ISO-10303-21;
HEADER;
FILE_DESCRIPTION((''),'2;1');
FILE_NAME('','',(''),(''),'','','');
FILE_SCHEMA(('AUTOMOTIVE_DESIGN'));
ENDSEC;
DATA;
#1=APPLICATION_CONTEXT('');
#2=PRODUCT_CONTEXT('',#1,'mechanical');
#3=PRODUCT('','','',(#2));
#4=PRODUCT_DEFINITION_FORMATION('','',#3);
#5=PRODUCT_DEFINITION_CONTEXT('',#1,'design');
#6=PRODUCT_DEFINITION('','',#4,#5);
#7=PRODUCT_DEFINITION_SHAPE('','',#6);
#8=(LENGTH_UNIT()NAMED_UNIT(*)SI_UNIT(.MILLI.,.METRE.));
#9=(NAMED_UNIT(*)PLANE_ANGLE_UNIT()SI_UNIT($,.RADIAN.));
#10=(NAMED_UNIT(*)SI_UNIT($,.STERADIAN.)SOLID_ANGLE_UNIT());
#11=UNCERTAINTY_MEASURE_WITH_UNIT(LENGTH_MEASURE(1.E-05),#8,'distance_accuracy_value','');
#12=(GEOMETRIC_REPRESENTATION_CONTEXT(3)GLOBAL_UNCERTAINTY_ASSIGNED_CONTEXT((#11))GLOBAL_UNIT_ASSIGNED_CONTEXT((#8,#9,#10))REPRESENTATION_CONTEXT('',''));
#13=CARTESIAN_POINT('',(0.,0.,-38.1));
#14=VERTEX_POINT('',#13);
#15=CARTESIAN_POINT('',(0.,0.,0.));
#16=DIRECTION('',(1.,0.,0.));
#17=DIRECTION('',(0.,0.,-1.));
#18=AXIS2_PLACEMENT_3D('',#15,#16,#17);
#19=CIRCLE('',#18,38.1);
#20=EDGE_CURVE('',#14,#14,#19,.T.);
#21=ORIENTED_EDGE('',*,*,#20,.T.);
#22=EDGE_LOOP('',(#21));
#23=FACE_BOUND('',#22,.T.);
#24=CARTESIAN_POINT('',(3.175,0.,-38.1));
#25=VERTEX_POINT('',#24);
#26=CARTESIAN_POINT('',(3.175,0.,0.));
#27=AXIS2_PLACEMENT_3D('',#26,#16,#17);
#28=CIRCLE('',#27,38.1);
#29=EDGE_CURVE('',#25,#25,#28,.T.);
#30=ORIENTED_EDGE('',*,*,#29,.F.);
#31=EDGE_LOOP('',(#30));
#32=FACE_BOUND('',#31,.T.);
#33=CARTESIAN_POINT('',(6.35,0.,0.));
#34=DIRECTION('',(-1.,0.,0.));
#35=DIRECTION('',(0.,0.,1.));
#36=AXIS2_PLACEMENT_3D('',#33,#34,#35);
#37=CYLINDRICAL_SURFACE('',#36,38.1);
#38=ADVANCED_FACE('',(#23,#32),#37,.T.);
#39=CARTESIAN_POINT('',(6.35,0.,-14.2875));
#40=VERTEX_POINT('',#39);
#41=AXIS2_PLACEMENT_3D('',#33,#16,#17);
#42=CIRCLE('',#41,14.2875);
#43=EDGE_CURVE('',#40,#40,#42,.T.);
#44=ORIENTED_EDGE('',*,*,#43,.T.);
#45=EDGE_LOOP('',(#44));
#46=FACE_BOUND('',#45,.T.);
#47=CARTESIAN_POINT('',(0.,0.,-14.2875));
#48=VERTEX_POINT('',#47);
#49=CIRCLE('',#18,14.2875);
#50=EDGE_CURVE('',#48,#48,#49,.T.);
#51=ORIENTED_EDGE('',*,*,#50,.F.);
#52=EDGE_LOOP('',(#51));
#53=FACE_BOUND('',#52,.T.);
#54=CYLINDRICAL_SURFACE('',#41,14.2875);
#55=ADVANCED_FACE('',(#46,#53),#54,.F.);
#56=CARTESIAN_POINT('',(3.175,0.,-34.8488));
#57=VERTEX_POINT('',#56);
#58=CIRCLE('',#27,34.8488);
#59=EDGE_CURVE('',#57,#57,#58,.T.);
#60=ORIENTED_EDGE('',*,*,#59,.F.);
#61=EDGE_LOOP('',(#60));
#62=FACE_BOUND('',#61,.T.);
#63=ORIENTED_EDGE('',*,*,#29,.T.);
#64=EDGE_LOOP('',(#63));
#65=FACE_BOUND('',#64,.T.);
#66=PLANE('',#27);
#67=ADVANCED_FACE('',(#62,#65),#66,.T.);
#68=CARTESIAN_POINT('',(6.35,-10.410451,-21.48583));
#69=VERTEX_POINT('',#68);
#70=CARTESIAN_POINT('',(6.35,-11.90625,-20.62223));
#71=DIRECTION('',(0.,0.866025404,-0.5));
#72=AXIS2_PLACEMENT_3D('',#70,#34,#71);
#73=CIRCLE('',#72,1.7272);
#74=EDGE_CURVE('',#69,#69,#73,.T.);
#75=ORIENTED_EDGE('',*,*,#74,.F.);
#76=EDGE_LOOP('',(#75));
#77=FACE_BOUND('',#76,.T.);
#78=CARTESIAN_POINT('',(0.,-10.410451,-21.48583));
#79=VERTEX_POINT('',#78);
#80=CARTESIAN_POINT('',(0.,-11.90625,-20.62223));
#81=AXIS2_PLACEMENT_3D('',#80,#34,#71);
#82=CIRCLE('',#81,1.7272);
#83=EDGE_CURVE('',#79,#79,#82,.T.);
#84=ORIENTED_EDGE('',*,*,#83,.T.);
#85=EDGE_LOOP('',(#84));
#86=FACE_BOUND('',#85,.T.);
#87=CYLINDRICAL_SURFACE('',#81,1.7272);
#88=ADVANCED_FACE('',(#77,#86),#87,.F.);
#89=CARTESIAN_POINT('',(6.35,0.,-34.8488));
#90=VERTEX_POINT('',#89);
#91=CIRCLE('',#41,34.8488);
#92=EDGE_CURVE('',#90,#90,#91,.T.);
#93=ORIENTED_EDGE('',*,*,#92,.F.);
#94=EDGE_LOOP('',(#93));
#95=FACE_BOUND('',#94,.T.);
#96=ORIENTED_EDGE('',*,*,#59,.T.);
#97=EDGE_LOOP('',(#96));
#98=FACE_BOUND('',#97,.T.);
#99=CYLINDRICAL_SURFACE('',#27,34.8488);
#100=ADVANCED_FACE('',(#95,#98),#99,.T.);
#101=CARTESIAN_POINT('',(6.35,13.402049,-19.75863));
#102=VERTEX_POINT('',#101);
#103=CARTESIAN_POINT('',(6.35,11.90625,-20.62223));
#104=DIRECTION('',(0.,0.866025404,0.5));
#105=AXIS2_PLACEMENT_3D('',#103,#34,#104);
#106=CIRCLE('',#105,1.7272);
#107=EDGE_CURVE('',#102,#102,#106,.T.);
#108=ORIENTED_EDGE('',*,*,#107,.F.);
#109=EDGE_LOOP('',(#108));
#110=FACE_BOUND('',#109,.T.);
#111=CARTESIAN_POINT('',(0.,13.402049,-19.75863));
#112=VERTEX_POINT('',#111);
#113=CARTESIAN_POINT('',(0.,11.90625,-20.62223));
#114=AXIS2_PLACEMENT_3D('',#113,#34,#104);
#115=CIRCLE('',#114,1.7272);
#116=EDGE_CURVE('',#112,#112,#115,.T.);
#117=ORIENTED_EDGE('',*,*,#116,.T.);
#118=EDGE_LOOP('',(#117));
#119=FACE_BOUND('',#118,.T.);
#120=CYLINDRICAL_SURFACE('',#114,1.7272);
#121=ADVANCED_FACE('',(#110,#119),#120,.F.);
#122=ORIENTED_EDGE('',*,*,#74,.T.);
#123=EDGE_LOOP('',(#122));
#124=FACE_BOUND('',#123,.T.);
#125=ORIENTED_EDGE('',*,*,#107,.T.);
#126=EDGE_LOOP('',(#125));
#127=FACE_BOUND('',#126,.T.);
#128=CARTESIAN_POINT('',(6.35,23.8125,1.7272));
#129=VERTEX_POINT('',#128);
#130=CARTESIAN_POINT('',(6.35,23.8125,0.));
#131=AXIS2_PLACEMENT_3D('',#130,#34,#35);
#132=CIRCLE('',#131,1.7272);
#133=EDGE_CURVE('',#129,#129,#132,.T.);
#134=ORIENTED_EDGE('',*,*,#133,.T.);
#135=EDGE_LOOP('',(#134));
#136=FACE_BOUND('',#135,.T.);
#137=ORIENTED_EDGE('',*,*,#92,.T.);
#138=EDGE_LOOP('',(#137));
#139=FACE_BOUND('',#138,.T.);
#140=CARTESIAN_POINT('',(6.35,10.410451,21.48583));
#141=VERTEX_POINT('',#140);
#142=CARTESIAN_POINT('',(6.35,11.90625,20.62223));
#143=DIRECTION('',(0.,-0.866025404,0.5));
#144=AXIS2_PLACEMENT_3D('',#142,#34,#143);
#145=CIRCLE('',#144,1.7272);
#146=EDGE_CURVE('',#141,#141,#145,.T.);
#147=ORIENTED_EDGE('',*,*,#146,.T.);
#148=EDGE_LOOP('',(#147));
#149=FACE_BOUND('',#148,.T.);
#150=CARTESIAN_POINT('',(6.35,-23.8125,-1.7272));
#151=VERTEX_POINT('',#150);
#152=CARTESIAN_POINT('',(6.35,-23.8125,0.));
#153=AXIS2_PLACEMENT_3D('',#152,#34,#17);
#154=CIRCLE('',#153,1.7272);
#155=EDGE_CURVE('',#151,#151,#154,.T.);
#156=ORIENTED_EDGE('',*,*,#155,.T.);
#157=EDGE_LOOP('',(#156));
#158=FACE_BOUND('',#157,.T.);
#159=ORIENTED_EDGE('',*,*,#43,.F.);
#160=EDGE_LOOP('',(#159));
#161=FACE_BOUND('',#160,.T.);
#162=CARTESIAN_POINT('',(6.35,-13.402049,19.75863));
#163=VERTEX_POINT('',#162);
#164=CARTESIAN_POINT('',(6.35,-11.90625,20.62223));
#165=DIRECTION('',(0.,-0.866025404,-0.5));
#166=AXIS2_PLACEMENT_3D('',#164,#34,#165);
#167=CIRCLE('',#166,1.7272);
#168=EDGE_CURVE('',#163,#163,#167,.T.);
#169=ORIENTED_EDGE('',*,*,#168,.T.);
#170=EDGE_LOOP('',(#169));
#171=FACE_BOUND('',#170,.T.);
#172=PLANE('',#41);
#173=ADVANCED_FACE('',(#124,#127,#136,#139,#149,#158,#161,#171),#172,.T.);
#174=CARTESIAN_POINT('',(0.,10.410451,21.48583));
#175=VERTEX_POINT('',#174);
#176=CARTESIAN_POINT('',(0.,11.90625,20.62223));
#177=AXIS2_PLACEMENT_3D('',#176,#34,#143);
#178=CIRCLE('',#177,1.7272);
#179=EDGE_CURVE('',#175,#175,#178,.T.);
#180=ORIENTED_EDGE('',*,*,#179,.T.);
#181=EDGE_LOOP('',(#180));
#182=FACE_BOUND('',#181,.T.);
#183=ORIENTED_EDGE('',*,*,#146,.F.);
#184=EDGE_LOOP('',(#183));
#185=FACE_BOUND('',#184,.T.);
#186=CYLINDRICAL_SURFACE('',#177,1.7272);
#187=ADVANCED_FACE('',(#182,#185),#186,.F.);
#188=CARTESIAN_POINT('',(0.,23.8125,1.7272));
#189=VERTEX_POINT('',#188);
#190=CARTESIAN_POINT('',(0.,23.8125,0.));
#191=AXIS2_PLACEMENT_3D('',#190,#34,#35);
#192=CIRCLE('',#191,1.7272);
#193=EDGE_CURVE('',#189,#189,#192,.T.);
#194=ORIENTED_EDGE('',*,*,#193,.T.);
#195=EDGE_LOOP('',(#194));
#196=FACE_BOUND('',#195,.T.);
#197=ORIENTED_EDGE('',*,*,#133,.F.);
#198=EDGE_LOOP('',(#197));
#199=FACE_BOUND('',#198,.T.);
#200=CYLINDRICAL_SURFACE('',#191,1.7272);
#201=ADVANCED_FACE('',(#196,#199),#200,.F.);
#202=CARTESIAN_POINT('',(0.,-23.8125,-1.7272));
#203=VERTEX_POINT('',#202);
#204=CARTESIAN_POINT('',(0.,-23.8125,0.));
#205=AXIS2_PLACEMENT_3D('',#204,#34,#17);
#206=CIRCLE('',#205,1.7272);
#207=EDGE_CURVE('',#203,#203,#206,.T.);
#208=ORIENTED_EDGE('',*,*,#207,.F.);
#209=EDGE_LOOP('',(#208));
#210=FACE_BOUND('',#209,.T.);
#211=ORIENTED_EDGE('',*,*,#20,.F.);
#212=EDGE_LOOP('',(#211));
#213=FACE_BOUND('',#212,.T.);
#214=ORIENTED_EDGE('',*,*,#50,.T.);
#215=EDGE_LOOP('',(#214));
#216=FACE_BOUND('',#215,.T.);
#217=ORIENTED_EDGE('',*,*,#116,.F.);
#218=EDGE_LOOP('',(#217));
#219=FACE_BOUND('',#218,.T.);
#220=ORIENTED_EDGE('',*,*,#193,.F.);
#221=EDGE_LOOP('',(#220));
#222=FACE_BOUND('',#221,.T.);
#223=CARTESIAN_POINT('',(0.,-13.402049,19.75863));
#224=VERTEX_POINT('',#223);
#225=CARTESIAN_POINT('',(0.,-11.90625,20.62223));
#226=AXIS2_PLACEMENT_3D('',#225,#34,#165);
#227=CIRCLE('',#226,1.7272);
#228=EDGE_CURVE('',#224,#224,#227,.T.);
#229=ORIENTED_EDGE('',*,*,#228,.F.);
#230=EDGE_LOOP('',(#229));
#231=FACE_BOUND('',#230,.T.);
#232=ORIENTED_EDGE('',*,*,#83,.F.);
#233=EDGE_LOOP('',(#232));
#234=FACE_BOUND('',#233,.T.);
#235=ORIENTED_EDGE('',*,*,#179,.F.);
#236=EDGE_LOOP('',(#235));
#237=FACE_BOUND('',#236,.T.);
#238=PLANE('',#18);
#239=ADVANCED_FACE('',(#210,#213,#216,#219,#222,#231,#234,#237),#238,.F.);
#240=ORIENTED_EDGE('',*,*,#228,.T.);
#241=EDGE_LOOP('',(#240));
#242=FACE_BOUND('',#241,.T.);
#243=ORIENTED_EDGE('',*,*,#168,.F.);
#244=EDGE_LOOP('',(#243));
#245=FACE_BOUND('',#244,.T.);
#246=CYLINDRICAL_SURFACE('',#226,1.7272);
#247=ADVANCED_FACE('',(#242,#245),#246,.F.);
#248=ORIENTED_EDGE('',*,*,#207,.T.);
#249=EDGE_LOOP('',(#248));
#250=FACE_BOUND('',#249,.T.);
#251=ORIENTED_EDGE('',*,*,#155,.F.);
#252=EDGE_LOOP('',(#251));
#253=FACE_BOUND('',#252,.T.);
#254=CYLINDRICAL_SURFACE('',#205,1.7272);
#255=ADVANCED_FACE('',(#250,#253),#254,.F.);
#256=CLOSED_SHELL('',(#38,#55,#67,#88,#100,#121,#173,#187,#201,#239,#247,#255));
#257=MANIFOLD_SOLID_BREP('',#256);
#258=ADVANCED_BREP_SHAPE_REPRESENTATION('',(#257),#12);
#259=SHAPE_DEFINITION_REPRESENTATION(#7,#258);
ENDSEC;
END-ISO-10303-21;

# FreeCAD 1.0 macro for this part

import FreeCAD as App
import Part
import Sketcher

V = App.Vector
Q = App.Units.Quantity

doc = App.newDocument("Part")
body = doc.addObject("PartDesign::Body", "Body")

# Sketch on YZ plane
sketch1 = body.newObject("Sketcher::SketchObject", "Sketch")
sketch1.AttachmentSupport = (doc.getObject("YZ_Plane"), [""])
sketch1.MapMode = "FlatFace"
sketch1.addGeometry(Part.Circle(V(0, 0, 0), V(0, 0, 1), 38), False)
sketch1.addConstraint([
    Sketcher.Constraint("Coincident", 0, 3, -1, 1),
    Sketcher.Constraint("Diameter", 0, Q("3 in")),
])
pad1 = body.newObject("PartDesign::Pad", "Pad")
pad1.Profile = sketch1
pad1.Length = Q("0.25 in")

# Sketch on YZ plane
sketch2 = body.newObject("Sketcher::SketchObject", "Sketch001")
sketch2.AttachmentSupport = (doc.getObject("YZ_Plane"), [""])
sketch2.MapMode = "FlatFace"
sketch2.AttachmentOffset = App.Placement(V(0, 0, 0.25 * 25.4), App.Rotation())
sketch2.addGeometry([
    Part.Circle(V(0, 0, 0), V(0, 0, 1), 38),
    Part.Circle(V(0, 0, 0), V(0, 0, 1), 35),
], False)
sketch2.addConstraint([
    Sketcher.Constraint("Coincident", 0, 3, -1, 1),
    Sketcher.Constraint("Coincident", 1, 3, -1, 1),
    Sketcher.Constraint("Diameter", 0, Q("3 in")),
    Sketcher.Constraint("Diameter", 1, Q("2.744 in")),
])
pocket1 = body.newObject("PartDesign::Pocket", "Pocket")
pocket1.Profile = sketch2
pocket1.Length = Q("0.125 in")

# Sketch on YZ plane
sketch3 = body.newObject("Sketcher::SketchObject", "Sketch002")
sketch3.AttachmentSupport = (doc.getObject("YZ_Plane"), [""])
sketch3.MapMode = "FlatFace"
sketch3.AttachmentOffset = App.Placement(V(0, 0, 0.25 * 25.4), App.Rotation())
sketch3.addGeometry(Part.Circle(V(0, 0, 0), V(0, 0, 1), 14), False)
sketch3.addConstraint([
    Sketcher.Constraint("Coincident", 0, 3, -1, 1),
    Sketcher.Constraint("Diameter", 0, Q("1.125 in")),
])
doc.recompute()
hole = body.newObject("PartDesign::Hole", "Hole")
hole.Profile = sketch3
hole.ThreadType = "None"
hole.Diameter = Q("1.125 in")
hole.DepthType = "ThroughAll"

# Sketch on YZ plane
sketch4 = body.newObject("Sketcher::SketchObject", "Sketch003")
sketch4.AttachmentSupport = (doc.getObject("YZ_Plane"), [""])
sketch4.MapMode = "FlatFace"
sketch4.addGeometry(Part.Circle(V(23.8, 0, 0), V(0, 0, 1), 1.7), False)
sketch4.addConstraint([
    Sketcher.Constraint("PointOnObject", 0, 3, -1),
    Sketcher.Constraint("Diameter", 0, Q("0.136 in")),
    Sketcher.Constraint("DistanceX", -1, 1, 0, 3, Q("0.9375 in")),
])
doc.recompute()
hole2 = body.newObject("PartDesign::Hole", "Hole001")
hole2.Profile = sketch4
hole2.ThreadType = "None"
hole2.Diameter = Q("0.136 in")
hole2.DepthType = "ThroughAll"
hole2.Reversed = True
doc.recompute()

polarpattern = body.newObject("PartDesign::PolarPattern", "PolarPattern")
polarpattern.Originals = [hole2]
polarpattern.Axis = (doc.getObject("X_Axis"), [""])
polarpattern.Angle = 360
polarpattern.Occurrences = 6
body.Tip = polarpattern

doc.recompute()
